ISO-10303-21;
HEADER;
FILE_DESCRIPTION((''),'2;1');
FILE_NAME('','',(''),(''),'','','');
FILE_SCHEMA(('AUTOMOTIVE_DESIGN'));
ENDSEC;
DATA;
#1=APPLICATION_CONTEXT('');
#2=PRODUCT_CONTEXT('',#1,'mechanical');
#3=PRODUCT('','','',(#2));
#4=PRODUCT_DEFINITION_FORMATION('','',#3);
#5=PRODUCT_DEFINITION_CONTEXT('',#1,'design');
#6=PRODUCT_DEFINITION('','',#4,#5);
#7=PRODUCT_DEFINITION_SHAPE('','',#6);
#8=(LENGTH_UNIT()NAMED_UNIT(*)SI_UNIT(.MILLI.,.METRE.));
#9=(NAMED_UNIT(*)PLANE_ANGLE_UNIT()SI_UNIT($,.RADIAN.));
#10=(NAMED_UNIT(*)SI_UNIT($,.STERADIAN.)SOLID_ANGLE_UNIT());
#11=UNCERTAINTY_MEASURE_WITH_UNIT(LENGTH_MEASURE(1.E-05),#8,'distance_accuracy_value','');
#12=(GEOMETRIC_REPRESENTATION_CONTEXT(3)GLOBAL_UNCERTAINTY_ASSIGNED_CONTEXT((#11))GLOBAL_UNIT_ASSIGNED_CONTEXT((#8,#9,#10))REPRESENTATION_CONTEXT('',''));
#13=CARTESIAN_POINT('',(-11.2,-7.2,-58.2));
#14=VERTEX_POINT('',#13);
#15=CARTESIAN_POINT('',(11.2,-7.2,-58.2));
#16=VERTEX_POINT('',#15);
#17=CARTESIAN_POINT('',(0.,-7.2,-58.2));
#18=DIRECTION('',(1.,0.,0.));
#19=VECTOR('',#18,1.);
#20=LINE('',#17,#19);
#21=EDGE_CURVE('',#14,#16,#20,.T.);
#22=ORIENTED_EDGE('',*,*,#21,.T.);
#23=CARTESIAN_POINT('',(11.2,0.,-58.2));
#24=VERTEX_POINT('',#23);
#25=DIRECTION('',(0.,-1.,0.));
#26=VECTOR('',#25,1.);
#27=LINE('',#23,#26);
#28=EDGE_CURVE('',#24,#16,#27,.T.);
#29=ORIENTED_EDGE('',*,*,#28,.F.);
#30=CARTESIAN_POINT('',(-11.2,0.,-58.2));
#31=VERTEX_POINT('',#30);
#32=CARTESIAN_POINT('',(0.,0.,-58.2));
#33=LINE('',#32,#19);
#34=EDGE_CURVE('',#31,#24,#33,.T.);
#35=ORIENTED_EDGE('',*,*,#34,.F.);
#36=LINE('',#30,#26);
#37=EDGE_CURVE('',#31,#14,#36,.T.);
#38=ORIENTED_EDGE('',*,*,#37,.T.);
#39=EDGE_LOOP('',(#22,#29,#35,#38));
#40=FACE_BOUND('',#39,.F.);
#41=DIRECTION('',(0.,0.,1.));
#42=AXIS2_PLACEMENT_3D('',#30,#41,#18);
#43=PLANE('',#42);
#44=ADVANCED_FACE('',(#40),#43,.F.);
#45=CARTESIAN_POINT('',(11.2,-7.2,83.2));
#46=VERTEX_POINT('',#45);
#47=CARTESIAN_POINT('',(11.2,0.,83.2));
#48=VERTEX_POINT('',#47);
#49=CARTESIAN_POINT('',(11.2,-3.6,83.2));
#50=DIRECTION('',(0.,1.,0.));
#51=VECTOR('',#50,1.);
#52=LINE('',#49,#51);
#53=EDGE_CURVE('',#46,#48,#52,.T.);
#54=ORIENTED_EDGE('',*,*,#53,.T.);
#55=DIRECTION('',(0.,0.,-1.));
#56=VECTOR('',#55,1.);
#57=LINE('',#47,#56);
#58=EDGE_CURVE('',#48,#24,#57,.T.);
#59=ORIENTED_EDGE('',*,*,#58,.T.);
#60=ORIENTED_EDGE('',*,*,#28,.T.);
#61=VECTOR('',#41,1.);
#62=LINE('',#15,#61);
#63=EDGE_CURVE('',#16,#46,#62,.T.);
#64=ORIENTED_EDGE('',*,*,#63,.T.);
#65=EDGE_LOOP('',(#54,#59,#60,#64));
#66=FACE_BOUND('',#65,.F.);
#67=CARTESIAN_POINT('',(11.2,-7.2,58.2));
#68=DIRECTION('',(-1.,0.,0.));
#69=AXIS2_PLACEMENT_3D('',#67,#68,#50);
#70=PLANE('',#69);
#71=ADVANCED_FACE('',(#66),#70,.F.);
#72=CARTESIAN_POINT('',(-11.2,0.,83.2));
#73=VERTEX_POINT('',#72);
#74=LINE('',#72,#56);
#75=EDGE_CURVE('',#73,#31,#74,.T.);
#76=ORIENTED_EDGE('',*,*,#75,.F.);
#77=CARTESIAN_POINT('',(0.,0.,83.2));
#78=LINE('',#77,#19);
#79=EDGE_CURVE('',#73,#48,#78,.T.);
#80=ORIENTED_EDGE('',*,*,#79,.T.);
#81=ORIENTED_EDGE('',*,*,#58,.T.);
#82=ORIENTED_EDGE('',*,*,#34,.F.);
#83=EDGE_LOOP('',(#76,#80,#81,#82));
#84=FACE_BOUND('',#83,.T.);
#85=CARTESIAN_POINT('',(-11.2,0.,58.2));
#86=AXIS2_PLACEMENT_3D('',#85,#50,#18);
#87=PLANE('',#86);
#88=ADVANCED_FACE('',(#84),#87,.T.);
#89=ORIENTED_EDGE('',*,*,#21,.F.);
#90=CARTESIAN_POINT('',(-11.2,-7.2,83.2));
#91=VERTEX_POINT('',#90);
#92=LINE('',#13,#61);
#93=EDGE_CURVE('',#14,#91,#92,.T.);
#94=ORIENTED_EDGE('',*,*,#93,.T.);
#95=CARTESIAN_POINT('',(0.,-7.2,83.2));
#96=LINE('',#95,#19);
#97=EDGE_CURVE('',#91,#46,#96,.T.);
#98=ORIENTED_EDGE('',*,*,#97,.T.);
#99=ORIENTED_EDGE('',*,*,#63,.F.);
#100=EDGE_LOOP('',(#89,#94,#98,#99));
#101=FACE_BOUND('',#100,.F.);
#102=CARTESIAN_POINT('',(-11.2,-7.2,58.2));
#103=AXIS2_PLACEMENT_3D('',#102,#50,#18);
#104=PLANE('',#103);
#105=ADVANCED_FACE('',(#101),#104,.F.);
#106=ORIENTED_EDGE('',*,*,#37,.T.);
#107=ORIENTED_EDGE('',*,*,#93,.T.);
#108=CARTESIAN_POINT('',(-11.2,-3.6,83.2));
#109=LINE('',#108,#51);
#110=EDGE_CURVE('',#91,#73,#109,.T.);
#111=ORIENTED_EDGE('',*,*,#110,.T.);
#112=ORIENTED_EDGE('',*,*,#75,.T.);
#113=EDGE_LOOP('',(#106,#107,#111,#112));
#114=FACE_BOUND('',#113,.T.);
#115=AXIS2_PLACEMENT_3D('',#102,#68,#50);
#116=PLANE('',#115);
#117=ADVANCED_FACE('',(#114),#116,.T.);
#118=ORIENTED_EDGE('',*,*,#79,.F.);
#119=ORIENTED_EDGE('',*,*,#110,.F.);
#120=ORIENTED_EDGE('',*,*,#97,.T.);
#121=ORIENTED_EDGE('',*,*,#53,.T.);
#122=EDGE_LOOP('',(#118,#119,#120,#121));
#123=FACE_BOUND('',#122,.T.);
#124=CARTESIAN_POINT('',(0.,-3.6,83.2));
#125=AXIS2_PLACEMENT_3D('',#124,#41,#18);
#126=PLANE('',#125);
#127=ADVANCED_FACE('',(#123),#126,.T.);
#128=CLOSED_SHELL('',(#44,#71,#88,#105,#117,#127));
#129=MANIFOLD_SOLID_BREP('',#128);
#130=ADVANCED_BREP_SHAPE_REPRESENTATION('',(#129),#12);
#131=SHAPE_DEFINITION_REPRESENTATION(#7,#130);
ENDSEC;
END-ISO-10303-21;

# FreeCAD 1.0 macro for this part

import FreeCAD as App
import Part
import Sketcher
from FreeCAD import Vector


def add_polygon(sketch, points):
    """Adds a closed chain of lines whose ends are joined by coincident constraints."""
    first, n = sketch.GeometryCount, len(points)
    for a, b in zip(points, points[1:] + points[:1]):
        sketch.addGeometry(Part.LineSegment(App.Vector(*a, 0), App.Vector(*b, 0)), False)
    for i in range(n):
        sketch.addConstraint(Sketcher.Constraint("Coincident", first + i, 2, first + (i + 1) % n, 1))

doc = App.newDocument("Part")
body = doc.addObject("PartDesign::Body", "Body")

# Sketch on XZ plane
sketch1 = body.newObject("Sketcher::SketchObject", "Sketch")
sketch1.AttachmentSupport = (doc.getObject("XZ_Plane"), [""])
sketch1.MapMode = "FlatFace"
add_polygon(sketch1, [(-11.2, 58.2), (-11.2, -58.2), (11.2, -58.2), (11.2, 58.2)])  # lines 0-3
sketch1.addConstraint(Sketcher.Constraint("Vertical", 0))
sketch1.addConstraint(Sketcher.Constraint("Horizontal", 1))
sketch1.addConstraint(Sketcher.Constraint("Vertical", 2))
sketch1.addConstraint(Sketcher.Constraint("Horizontal", 3))
sketch1.addConstraint(Sketcher.Constraint("Symmetric", 0, 2, 2, 2, -1, 1))
sketch1.addConstraint(Sketcher.Constraint("DistanceX", 1, 1, 1, 2, 22.4))
sketch1.addConstraint(Sketcher.Constraint("DistanceY", 0, 2, 0, 1, 116.4))
pad1 = body.newObject("PartDesign::Pad", "Pad")
pad1.Profile = sketch1
pad1.Length = 7.2

# Sketch on XY plane
sketch2 = body.newObject("Sketcher::SketchObject", "Sketch001")
sketch2.AttachmentSupport = (doc.getObject("XY_Plane"), [""])
sketch2.MapMode = "FlatFace"
sketch2.AttachmentOffset = App.Placement(Vector(0, 0, 58.2), App.Rotation())
add_polygon(sketch2, [(-11.2, 0), (-11.2, -7.2), (11.2, -7.2), (11.2, 0)])  # lines 0-3
sketch2.addConstraint(Sketcher.Constraint("Vertical", 0))
sketch2.addConstraint(Sketcher.Constraint("Horizontal", 1))
sketch2.addConstraint(Sketcher.Constraint("Vertical", 2))
sketch2.addConstraint(Sketcher.Constraint("Horizontal", 3))
sketch2.addConstraint(Sketcher.Constraint("Symmetric", 2, 2, 3, 2, -1, 1))
sketch2.addConstraint(Sketcher.Constraint("DistanceX", 1, 1, 1, 2, 22.4))
sketch2.addConstraint(Sketcher.Constraint("DistanceY", 0, 2, 0, 1, 7.2))
pad2 = body.newObject("PartDesign::Pad", "Pad001")
pad2.Profile = sketch2
pad2.Length = 25

doc.recompute()
